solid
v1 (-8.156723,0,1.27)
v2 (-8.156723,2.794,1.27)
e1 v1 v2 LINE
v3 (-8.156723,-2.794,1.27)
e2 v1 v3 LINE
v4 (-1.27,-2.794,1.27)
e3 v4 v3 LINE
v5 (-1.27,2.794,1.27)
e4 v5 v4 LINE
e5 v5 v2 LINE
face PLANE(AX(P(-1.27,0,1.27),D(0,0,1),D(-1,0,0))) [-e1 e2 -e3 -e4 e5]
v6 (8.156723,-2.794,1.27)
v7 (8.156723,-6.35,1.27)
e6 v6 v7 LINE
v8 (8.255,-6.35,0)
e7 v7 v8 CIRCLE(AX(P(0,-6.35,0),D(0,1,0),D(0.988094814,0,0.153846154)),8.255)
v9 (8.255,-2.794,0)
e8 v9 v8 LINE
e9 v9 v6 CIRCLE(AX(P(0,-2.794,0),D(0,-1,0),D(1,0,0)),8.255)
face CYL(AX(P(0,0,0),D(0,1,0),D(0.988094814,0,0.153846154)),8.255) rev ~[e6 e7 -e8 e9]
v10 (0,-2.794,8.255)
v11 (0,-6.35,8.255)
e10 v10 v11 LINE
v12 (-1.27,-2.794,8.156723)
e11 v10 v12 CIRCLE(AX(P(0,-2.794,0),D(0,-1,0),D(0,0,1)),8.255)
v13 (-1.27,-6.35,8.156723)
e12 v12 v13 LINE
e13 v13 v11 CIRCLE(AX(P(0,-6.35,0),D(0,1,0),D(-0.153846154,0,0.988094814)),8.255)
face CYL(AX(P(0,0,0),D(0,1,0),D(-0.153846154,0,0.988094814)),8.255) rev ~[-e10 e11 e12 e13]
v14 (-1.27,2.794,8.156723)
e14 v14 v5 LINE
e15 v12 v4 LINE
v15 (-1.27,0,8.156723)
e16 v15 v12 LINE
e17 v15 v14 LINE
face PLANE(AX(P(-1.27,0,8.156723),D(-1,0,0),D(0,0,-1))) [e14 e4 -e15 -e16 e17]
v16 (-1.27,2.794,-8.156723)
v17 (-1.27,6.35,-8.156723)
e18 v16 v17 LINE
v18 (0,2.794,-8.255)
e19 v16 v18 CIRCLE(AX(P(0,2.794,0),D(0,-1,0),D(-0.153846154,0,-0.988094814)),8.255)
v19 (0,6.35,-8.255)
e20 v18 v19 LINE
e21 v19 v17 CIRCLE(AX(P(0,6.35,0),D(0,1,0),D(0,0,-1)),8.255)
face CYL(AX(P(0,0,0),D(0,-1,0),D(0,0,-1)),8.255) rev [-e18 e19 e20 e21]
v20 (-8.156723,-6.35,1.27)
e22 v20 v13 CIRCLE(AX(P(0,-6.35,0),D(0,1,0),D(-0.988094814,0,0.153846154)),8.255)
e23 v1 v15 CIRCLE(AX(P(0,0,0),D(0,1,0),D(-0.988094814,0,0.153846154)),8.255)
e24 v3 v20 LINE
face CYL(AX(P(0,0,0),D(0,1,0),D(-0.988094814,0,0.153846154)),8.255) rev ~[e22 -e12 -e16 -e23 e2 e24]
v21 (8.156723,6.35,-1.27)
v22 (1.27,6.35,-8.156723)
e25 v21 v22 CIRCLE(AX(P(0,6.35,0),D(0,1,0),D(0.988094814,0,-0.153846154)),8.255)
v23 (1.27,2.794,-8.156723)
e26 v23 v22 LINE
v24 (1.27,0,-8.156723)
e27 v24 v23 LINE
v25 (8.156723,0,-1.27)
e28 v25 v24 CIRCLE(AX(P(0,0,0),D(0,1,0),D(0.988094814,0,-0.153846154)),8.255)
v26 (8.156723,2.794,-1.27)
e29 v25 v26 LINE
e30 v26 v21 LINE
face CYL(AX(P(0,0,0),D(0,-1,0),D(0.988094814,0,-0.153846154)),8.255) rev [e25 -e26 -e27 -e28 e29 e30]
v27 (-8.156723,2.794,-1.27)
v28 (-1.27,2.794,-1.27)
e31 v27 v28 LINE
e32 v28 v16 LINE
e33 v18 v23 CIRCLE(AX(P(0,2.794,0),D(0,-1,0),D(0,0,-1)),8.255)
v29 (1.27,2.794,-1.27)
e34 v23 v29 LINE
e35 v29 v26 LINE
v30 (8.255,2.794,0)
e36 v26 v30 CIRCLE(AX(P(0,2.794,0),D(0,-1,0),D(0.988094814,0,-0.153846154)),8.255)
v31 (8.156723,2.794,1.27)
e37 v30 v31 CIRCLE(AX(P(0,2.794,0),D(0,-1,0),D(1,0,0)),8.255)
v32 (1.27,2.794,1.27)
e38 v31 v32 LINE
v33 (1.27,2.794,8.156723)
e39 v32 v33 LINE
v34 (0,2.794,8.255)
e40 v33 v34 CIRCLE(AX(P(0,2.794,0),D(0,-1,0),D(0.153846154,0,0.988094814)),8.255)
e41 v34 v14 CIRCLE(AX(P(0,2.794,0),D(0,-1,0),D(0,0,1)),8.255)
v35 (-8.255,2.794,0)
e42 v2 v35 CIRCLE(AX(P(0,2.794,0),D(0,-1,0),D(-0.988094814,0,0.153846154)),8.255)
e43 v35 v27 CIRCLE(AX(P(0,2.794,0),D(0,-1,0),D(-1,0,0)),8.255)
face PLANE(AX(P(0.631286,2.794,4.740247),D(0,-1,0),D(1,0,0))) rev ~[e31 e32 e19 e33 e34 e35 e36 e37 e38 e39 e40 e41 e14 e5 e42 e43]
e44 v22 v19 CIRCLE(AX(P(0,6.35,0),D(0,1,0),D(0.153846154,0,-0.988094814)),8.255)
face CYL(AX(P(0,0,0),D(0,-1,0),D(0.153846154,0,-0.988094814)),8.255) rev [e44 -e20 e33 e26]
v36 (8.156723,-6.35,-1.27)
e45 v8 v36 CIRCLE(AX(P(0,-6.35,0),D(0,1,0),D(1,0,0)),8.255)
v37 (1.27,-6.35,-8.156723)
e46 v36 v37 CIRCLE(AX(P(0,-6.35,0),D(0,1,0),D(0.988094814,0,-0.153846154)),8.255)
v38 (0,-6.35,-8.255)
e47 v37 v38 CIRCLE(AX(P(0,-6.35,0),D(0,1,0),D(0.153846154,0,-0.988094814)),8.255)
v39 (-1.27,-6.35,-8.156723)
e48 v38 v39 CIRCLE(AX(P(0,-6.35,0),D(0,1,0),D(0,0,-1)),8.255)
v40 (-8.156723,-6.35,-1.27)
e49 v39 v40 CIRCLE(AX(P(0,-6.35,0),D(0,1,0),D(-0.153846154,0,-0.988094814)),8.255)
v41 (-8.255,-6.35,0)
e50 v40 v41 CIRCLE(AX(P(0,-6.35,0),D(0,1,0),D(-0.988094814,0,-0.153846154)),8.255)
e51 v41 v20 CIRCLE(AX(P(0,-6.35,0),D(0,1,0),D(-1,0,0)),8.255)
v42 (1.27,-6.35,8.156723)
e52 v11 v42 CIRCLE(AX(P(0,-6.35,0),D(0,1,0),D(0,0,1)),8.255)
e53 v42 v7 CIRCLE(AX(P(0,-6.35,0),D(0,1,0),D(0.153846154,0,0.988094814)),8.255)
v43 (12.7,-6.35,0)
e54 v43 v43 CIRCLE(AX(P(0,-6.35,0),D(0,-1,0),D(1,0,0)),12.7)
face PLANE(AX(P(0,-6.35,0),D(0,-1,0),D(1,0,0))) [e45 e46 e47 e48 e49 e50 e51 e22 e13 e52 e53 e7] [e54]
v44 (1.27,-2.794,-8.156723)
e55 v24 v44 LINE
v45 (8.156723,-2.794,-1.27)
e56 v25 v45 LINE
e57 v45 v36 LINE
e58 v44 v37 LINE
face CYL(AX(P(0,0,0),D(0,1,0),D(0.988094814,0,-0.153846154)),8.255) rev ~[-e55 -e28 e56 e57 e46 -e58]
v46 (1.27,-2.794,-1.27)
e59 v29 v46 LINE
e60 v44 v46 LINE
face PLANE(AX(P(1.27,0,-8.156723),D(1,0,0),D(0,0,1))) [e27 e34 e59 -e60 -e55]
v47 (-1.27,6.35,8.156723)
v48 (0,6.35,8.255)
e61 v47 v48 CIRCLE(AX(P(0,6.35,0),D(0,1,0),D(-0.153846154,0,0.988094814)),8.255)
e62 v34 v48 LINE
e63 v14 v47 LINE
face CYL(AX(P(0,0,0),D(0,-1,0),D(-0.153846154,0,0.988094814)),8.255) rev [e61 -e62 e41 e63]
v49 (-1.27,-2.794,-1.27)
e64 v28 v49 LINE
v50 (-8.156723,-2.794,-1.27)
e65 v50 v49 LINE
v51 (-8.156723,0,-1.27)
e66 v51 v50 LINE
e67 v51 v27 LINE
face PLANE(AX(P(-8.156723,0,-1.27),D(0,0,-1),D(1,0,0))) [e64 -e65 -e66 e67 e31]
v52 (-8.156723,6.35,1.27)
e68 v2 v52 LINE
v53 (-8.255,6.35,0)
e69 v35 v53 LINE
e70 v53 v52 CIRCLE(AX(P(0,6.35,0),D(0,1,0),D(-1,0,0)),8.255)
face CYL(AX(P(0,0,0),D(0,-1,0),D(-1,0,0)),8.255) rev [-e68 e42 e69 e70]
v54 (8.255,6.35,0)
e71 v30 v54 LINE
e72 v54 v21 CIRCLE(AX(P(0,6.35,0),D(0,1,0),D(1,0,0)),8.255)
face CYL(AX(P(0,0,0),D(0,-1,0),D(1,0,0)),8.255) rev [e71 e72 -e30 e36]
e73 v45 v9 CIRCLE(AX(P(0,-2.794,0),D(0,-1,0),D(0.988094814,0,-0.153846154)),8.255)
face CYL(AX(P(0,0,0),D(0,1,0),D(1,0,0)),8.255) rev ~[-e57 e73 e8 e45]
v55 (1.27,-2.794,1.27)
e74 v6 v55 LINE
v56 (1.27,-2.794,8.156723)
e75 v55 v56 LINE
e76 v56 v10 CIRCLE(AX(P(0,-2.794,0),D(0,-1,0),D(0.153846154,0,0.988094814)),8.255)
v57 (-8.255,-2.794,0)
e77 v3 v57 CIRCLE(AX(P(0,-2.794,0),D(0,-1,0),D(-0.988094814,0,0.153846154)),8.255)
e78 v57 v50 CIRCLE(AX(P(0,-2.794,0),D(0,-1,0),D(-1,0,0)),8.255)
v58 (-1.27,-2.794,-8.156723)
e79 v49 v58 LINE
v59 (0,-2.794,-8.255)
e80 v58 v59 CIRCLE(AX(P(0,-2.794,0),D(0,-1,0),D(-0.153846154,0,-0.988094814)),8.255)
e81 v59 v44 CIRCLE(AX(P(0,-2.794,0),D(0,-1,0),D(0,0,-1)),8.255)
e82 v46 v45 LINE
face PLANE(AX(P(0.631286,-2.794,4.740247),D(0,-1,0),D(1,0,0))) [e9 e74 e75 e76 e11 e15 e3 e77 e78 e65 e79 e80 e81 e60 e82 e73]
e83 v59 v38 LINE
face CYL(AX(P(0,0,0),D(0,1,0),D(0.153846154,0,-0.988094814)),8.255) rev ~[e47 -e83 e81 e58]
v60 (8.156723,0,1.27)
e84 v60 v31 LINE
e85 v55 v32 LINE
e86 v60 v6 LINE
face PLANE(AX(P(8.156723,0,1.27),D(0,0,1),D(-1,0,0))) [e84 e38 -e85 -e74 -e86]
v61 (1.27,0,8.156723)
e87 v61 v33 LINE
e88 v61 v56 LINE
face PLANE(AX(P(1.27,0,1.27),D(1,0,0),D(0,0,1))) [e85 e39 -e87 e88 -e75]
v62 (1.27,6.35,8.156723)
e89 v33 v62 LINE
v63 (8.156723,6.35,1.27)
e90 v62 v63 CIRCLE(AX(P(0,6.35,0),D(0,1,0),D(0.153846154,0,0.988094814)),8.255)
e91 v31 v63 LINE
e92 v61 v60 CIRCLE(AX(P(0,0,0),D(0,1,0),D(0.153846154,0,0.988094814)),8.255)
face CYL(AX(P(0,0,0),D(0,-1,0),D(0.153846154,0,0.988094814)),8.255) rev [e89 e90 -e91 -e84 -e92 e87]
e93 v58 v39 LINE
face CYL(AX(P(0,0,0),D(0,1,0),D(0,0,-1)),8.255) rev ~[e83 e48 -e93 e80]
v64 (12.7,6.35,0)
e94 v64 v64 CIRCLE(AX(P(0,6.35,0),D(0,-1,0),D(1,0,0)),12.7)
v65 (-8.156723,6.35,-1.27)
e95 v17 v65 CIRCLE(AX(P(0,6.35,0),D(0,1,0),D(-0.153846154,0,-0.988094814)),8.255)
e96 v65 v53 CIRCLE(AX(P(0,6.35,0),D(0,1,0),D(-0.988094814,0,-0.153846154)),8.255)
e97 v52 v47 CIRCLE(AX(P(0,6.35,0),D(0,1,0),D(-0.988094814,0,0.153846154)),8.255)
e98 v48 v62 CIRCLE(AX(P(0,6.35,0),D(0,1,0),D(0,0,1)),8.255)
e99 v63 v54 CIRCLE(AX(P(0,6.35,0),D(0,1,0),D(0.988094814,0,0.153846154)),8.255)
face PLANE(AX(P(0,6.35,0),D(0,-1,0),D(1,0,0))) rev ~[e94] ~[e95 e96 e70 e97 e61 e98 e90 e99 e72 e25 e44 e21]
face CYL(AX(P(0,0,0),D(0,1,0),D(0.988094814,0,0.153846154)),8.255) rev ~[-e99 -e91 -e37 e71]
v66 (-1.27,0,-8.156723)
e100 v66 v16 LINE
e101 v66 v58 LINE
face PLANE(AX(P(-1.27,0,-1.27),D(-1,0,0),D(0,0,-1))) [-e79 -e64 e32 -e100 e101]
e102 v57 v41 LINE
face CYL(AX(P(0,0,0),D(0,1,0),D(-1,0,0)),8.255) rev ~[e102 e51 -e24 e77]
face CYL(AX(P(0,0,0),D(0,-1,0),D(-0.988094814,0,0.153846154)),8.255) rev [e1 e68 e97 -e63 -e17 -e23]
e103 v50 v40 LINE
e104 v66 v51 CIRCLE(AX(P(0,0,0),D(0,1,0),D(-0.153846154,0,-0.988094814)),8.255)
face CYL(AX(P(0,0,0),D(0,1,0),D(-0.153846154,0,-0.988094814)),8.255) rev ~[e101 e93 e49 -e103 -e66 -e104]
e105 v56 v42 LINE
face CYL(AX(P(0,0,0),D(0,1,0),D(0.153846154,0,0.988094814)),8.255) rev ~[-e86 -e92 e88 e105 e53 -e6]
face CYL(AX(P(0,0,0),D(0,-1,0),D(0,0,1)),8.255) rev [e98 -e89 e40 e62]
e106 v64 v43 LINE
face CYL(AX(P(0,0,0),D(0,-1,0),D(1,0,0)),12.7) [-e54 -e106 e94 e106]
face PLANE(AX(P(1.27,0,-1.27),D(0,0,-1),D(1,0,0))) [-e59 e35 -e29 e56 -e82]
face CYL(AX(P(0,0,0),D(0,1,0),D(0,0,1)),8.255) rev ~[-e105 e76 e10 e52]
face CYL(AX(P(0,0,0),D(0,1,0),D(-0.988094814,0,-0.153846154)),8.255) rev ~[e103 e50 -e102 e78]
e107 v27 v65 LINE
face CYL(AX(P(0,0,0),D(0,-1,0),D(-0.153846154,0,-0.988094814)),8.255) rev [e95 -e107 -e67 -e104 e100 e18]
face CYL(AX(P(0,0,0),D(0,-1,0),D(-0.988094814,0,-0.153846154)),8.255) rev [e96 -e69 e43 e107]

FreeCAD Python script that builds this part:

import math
import FreeCAD as App
import Part
import Sketcher
Q = App.Units.Quantity

doc = App.newDocument("Part")
params = doc.addObject("Spreadsheet::Sheet", "Params")
for row, (alias, value) in enumerate([
    ("sketch1_diameter", "1 in"),
    ("sketch1_radius", "0.325 in"),
    ("pad1_length", "0.5 in"),
    ("sketch2_radius", "0.325 in"),
    ("pad2_length", "0.22 in"),
], start=1):
    params.set(f"A{row}", alias)
    params.set(f"B{row}", "=" + value)
    params.setAlias(f"B{row}", alias)

body = doc.addObject("PartDesign::Body", "Body")

sketch1 = body.newObject("Sketcher::SketchObject", "Sketch")
sketch1.AttachmentSupport = (doc.getObject("XZ_Plane"), [""])
sketch1.MapMode = "FlatFace"
sketch1.addGeometry(Part.Circle(App.Vector(0, 0, 0), App.Vector(0, 0, 1), 12.7), False)
sketch1.addGeometry(Part.ArcOfCircle(Part.Circle(App.Vector(0, 0, 0), App.Vector(0, 0, 1), 8.3), math.radians(9), math.radians(81)), False)
sketch1.addGeometry(Part.ArcOfCircle(Part.Circle(App.Vector(0, 0, 0), App.Vector(0, 0, 1), 8.3), math.radians(0), math.radians(8.85)), False)
sketch1.addGeometry(Part.ArcOfCircle(Part.Circle(App.Vector(0, 0, 0), App.Vector(0, 0, 1), 8.3), math.radians(-8.85), math.radians(0)), False)
sketch1.addGeometry(Part.ArcOfCircle(Part.Circle(App.Vector(0, 0, 0), App.Vector(0, 0, 1), 8.3), math.radians(-81), math.radians(-9)), False)
sketch1.addGeometry(Part.ArcOfCircle(Part.Circle(App.Vector(0, 0, 0), App.Vector(0, 0, 1), 8.3), math.radians(-90), math.radians(-81.15)), False)
sketch1.addGeometry(Part.ArcOfCircle(Part.Circle(App.Vector(0, 0, 0), App.Vector(0, 0, 1), 8.3), math.radians(-98.85), math.radians(-90)), False)
sketch1.addGeometry(Part.ArcOfCircle(Part.Circle(App.Vector(0, 0, 0), App.Vector(0, 0, 1), 8.3), math.radians(-171), math.radians(-99)), False)
sketch1.addGeometry(Part.ArcOfCircle(Part.Circle(App.Vector(0, 0, 0), App.Vector(0, 0, 1), 8.3), math.radians(-180), math.radians(-171.15)), False)
sketch1.addGeometry(Part.ArcOfCircle(Part.Circle(App.Vector(0, 0, 0), App.Vector(0, 0, 1), 8.3), math.radians(171.15), math.radians(180)), False)
sketch1.addGeometry(Part.ArcOfCircle(Part.Circle(App.Vector(0, 0, 0), App.Vector(0, 0, 1), 8.3), math.radians(99), math.radians(171)), False)
sketch1.addGeometry(Part.ArcOfCircle(Part.Circle(App.Vector(0, 0, 0), App.Vector(0, 0, 1), 8.3), math.radians(90), math.radians(98.85)), False)
sketch1.addGeometry(Part.ArcOfCircle(Part.Circle(App.Vector(0, 0, 0), App.Vector(0, 0, 1), 8.3), math.radians(81.15), math.radians(90)), False)
sketch1.addConstraint(Sketcher.Constraint("Tangent", 1, 1, 2, 2))
sketch1.addConstraint(Sketcher.Constraint("Tangent", 2, 1, 3, 2))
sketch1.addConstraint(Sketcher.Constraint("Tangent", 3, 1, 4, 2))
sketch1.addConstraint(Sketcher.Constraint("Tangent", 4, 1, 5, 2))
sketch1.addConstraint(Sketcher.Constraint("Tangent", 5, 1, 6, 2))
sketch1.addConstraint(Sketcher.Constraint("Tangent", 6, 1, 7, 2))
sketch1.addConstraint(Sketcher.Constraint("Tangent", 7, 1, 8, 2))
sketch1.addConstraint(Sketcher.Constraint("Tangent", 8, 1, 9, 2))
sketch1.addConstraint(Sketcher.Constraint("Tangent", 9, 1, 10, 2))
sketch1.addConstraint(Sketcher.Constraint("Tangent", 10, 1, 11, 2))
sketch1.addConstraint(Sketcher.Constraint("Tangent", 11, 1, 12, 2))
sketch1.addConstraint(Sketcher.Constraint("Tangent", 12, 1, 1, 2))
sketch1.addConstraint(Sketcher.Constraint("Coincident", 0, 3, -1, 1))
sketch1.addConstraint(Sketcher.Constraint("Coincident", 1, 3, -1, 1))
sketch1.addConstraint(Sketcher.Constraint("Coincident", 3, 3, -1, 1))
sketch1.addConstraint(Sketcher.Constraint("Coincident", 5, 3, -1, 1))
sketch1.addConstraint(Sketcher.Constraint("Coincident", 7, 3, -1, 1))
sketch1.addConstraint(Sketcher.Constraint("Coincident", 9, 3, -1, 1))
sketch1.addConstraint(Sketcher.Constraint("Equal", 9, 10))
sketch1.addConstraint(Sketcher.Constraint("PointOnObject", 2, 1, -1))
sketch1.addConstraint(Sketcher.Constraint("PointOnObject", 5, 1, -2))
sketch1.addConstraint(Sketcher.Constraint("PointOnObject", 8, 1, -1))
sketch1.addConstraint(Sketcher.Constraint("PointOnObject", 11, 1, -2))
sketch1.addConstraint(Sketcher.Constraint("Horizontal", 4, 1, 6, 1))
sketch1.addConstraint(Sketcher.Constraint("Horizontal", 3, 1, 7, 1))
sketch1.addConstraint(Sketcher.Constraint("Horizontal", 1, 1, 9, 1))
sketch1.addConstraint(Sketcher.Constraint("Horizontal", 10, 1, 12, 1))
sketch1.addConstraint(Sketcher.Constraint("Vertical", 1, 1, 3, 1))
sketch1.addConstraint(Sketcher.Constraint("Vertical", 6, 1, 10, 1))
sketch1.addConstraint(Sketcher.Constraint("Diameter", 0, Q("1 in")))
sketch1.addConstraint(Sketcher.Constraint("Radius", 1, Q("0.325 in")))
sketch1.addConstraint(Sketcher.Constraint("DistanceY", 3, 1, 1, 1, Q("0.1 in")))
sketch1.addConstraint(Sketcher.Constraint("DistanceX", 6, 1, 4, 1, Q("0.1 in")))
sketch1.setExpression("Constraints[29]", "Params.sketch1_diameter")
sketch1.setExpression("Constraints[30]", "Params.sketch1_radius")
pad1 = body.newObject("PartDesign::Pad", "Pad")
pad1.Profile = sketch1
pad1.setExpression("Length", "Params.pad1_length")
pad1.Midplane = True

sketch2 = body.newObject("Sketcher::SketchObject", "Sketch001")
sketch2.AttachmentSupport = (doc.getObject("XZ_Plane"), [""])
sketch2.MapMode = "FlatFace"
sketch2.addGeometry(Part.ArcOfCircle(Part.Circle(App.Vector(0, 0, 0), App.Vector(0, 0, 1), 8.3), math.radians(81.15), math.radians(90)), False)
sketch2.addGeometry(Part.ArcOfCircle(Part.Circle(App.Vector(0, 0, 0), App.Vector(0, 0, 1), 8.3), math.radians(90), math.radians(98.85)), False)
sketch2.addGeometry(Part.LineSegment(App.Vector(-1.3, 8.2, 0), App.Vector(-1.3, 1.3, 0)), False)
sketch2.addGeometry(Part.LineSegment(App.Vector(-1.3, 1.3, 0), App.Vector(-8.2, 1.3, 0)), False)
sketch2.addGeometry(Part.ArcOfCircle(Part.Circle(App.Vector(0, 0, 0), App.Vector(0, 0, 1), 8.3), math.radians(171.15), math.radians(180)), False)
sketch2.addGeometry(Part.ArcOfCircle(Part.Circle(App.Vector(0, 0, 0), App.Vector(0, 0, 1), 8.3), math.radians(-180), math.radians(-171.15)), False)
sketch2.addGeometry(Part.LineSegment(App.Vector(-8.2, -1.3, 0), App.Vector(-1.3, -1.3, 0)), False)
sketch2.addGeometry(Part.LineSegment(App.Vector(-1.3, -1.3, 0), App.Vector(-1.3, -8.2, 0)), False)
sketch2.addGeometry(Part.ArcOfCircle(Part.Circle(App.Vector(0, 0, 0), App.Vector(0, 0, 1), 8.3), math.radians(-98.85), math.radians(-90)), False)
sketch2.addGeometry(Part.ArcOfCircle(Part.Circle(App.Vector(0, 0, 0), App.Vector(0, 0, 1), 8.3), math.radians(-90), math.radians(-81.15)), False)
sketch2.addGeometry(Part.LineSegment(App.Vector(1.3, -8.2, 0), App.Vector(1.3, -1.3, 0)), False)
sketch2.addGeometry(Part.LineSegment(App.Vector(1.3, -1.3, 0), App.Vector(8.2, -1.3, 0)), False)
sketch2.addGeometry(Part.ArcOfCircle(Part.Circle(App.Vector(0, 0, 0), App.Vector(0, 0, 1), 8.3), math.radians(-8.85), math.radians(0)), False)
sketch2.addGeometry(Part.ArcOfCircle(Part.Circle(App.Vector(0, 0, 0), App.Vector(0, 0, 1), 8.3), math.radians(0), math.radians(8.85)), False)
sketch2.addGeometry(Part.LineSegment(App.Vector(8.2, 1.3, 0), App.Vector(1.3, 1.3, 0)), False)
sketch2.addGeometry(Part.LineSegment(App.Vector(1.3, 1.3, 0), App.Vector(1.3, 8.2, 0)), False)
sketch2.addConstraint(Sketcher.Constraint("Tangent", 0, 2, 1, 1))
sketch2.addConstraint(Sketcher.Constraint("Coincident", 1, 2, 2, 1))
sketch2.addConstraint(Sketcher.Constraint("Coincident", 2, 2, 3, 1))
sketch2.addConstraint(Sketcher.Constraint("Coincident", 3, 2, 4, 1))
sketch2.addConstraint(Sketcher.Constraint("Tangent", 4, 2, 5, 1))
sketch2.addConstraint(Sketcher.Constraint("Coincident", 5, 2, 6, 1))
sketch2.addConstraint(Sketcher.Constraint("Coincident", 6, 2, 7, 1))
sketch2.addConstraint(Sketcher.Constraint("Coincident", 7, 2, 8, 1))
sketch2.addConstraint(Sketcher.Constraint("Tangent", 8, 2, 9, 1))
sketch2.addConstraint(Sketcher.Constraint("Coincident", 9, 2, 10, 1))
sketch2.addConstraint(Sketcher.Constraint("Coincident", 10, 2, 11, 1))
sketch2.addConstraint(Sketcher.Constraint("Coincident", 11, 2, 12, 1))
sketch2.addConstraint(Sketcher.Constraint("Tangent", 12, 2, 13, 1))
sketch2.addConstraint(Sketcher.Constraint("Coincident", 13, 2, 14, 1))
sketch2.addConstraint(Sketcher.Constraint("Coincident", 14, 2, 15, 1))
sketch2.addConstraint(Sketcher.Constraint("Coincident", 15, 2, 0, 1))
sketch2.addConstraint(Sketcher.Constraint("Vertical", 2))
sketch2.addConstraint(Sketcher.Constraint("Horizontal", 3))
sketch2.addConstraint(Sketcher.Constraint("Horizontal", 6))
sketch2.addConstraint(Sketcher.Constraint("Vertical", 7))
sketch2.addConstraint(Sketcher.Constraint("Vertical", 10))
sketch2.addConstraint(Sketcher.Constraint("Horizontal", 11))
sketch2.addConstraint(Sketcher.Constraint("Horizontal", 14))
sketch2.addConstraint(Sketcher.Constraint("Vertical", 15))
sketch2.addConstraint(Sketcher.Constraint("Coincident", 0, 3, -1, 1))
sketch2.addConstraint(Sketcher.Constraint("Coincident", 4, 3, -1, 1))
sketch2.addConstraint(Sketcher.Constraint("Coincident", 8, 3, -1, 1))
sketch2.addConstraint(Sketcher.Constraint("Coincident", 12, 3, -1, 1))
sketch2.addConstraint(Sketcher.Constraint("Equal", 0, 1))
sketch2.addConstraint(Sketcher.Constraint("Equal", 1, 4))
sketch2.addConstraint(Sketcher.Constraint("Equal", 4, 5))
sketch2.addConstraint(Sketcher.Constraint("Equal", 5, 8))
sketch2.addConstraint(Sketcher.Constraint("Equal", 8, 9))
sketch2.addConstraint(Sketcher.Constraint("Equal", 9, 12))
sketch2.addConstraint(Sketcher.Constraint("Equal", 12, 13))
sketch2.addConstraint(Sketcher.Constraint("Symmetric", 2, 2, 10, 2, -1, 1))
sketch2.addConstraint(Sketcher.Constraint("Symmetric", 6, 2, 14, 2, -1, 1))
sketch2.addConstraint(Sketcher.Constraint("Symmetric", 6, 2, 10, 2, -2))
sketch2.addConstraint(Sketcher.Constraint("PointOnObject", 0, 2, -2))
sketch2.addConstraint(Sketcher.Constraint("PointOnObject", 4, 2, -1))
sketch2.addConstraint(Sketcher.Constraint("PointOnObject", 8, 2, -2))
sketch2.addConstraint(Sketcher.Constraint("PointOnObject", 12, 2, -1))
sketch2.addConstraint(Sketcher.Constraint("Equal", 14, 2))
sketch2.addConstraint(Sketcher.Constraint("Radius", 0, Q("0.325 in")))
sketch2.addConstraint(Sketcher.Constraint("DistanceY", 5, 2, 3, 2, Q("0.1 in")))
sketch2.setExpression("Constraints[43]", "Params.sketch2_radius")
pad2 = body.newObject("PartDesign::Pad", "Pad001")
pad2.Profile = sketch2
pad2.setExpression("Length", "Params.pad2_length")
pad2.Midplane = True

doc.recompute()
